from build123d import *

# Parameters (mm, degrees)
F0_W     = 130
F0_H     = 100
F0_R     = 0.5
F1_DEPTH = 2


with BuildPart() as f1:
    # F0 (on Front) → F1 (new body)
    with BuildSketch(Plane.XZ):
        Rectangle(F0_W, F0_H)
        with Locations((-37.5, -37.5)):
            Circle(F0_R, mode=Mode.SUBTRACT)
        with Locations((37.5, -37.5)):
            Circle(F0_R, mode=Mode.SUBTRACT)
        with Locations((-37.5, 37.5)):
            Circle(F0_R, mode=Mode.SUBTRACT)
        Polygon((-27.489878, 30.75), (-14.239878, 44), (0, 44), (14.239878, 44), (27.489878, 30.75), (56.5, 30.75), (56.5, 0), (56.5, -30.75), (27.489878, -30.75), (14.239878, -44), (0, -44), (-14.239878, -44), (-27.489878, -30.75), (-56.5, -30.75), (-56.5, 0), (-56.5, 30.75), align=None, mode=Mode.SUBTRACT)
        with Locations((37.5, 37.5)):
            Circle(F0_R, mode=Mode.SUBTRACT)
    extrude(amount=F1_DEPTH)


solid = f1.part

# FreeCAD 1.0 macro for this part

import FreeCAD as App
import Part
import Sketcher

V = App.Vector
Q = App.Units.Quantity


def add_polygon(sketch, points):
    """Adds a closed chain of lines whose ends are joined by coincident constraints."""
    first, n = sketch.GeometryCount, len(points)
    for a, b in zip(points, points[1:] + points[:1]):
        sketch.addGeometry(Part.LineSegment(App.Vector(*a, 0), App.Vector(*b, 0)), False)
    for i in range(n):
        sketch.addConstraint(Sketcher.Constraint("Coincident", first + i, 2, first + (i + 1) % n, 1))

doc = App.newDocument("Part")
body = doc.addObject("PartDesign::Body", "Body")

sketch1 = doc.addObject("Sketcher::SketchObject", "Sketch")
body.addObject(sketch1)
sketch1.AttachmentSupport = (doc.XZ_Plane, [""])
sketch1.MapMode = "FlatFace"
add_polygon(sketch1, [(-65, 50), (-65, -50), (65, -50), (65, 50)])
sketch1.addGeometry(Part.Circle(V(-37.5, -37.5, 0), V(0, 0, 1), 0.5), False)
sketch1.addGeometry(Part.Circle(V(37.5, -37.5, 0), V(0, 0, 1), 0.5), False)
sketch1.addGeometry(Part.Circle(V(-37.5, 37.5, 0), V(0, 0, 1), 0.5), False)
add_polygon(sketch1, [(-56.5, 30.8), (-27.5, 30.8), (-14.2, 44), (14.2, 44), (27.5, 30.8), (56.5, 30.8), (56.5, -30.8), (27.5, -30.8), (14.2, -44), (-14.2, -44), (-27.5, -30.8), (-56.5, -30.8)])
sketch1.addGeometry(Part.Circle(V(37.5, 37.5, 0), V(0, 0, 1), 0.5), False)
sketch1.addConstraint(Sketcher.Constraint("Vertical", 0))
sketch1.addConstraint(Sketcher.Constraint("Horizontal", 1))
sketch1.addConstraint(Sketcher.Constraint("Vertical", 2))
sketch1.addConstraint(Sketcher.Constraint("Horizontal", 3))
sketch1.addConstraint(Sketcher.Constraint("Horizontal", 7))
sketch1.addConstraint(Sketcher.Constraint("Horizontal", 9))
sketch1.addConstraint(Sketcher.Constraint("Horizontal", 11))
sketch1.addConstraint(Sketcher.Constraint("Vertical", 12))
sketch1.addConstraint(Sketcher.Constraint("Horizontal", 13))
sketch1.addConstraint(Sketcher.Constraint("Horizontal", 15))
sketch1.addConstraint(Sketcher.Constraint("Horizontal", 17))
sketch1.addConstraint(Sketcher.Constraint("Vertical", 18))
sketch1.addConstraint(Sketcher.Constraint("Equal", 4, 5))
sketch1.addConstraint(Sketcher.Constraint("Equal", 5, 6))
sketch1.addConstraint(Sketcher.Constraint("Equal", 6, 19))
sketch1.addConstraint(Sketcher.Constraint("Symmetric", 5, 3, 6, 3, -1, 1))
sketch1.addConstraint(Sketcher.Constraint("Symmetric", 4, 3, 19, 3, -1, 1))
sketch1.addConstraint(Sketcher.Constraint("Symmetric", 0, 2, 2, 2, -1, 1))
sketch1.addConstraint(Sketcher.Constraint("Symmetric", 7, 2, 13, 2, -1, 1))
sketch1.addConstraint(Sketcher.Constraint("Symmetric", 8, 2, 14, 2, -1, 1))
sketch1.addConstraint(Sketcher.Constraint("Symmetric", 10, 2, 16, 2, -1, 1))
sketch1.addConstraint(Sketcher.Constraint("Symmetric", 4, 3, 5, 3, -2))
sketch1.addConstraint(Sketcher.Constraint("Symmetric", 7, 2, 10, 2, -2))
sketch1.addConstraint(Sketcher.Constraint("Perpendicular", 8, 10))
sketch1.addConstraint(Sketcher.Constraint("Perpendicular", 14, 16))
sketch1.addConstraint(Sketcher.Constraint("Vertical", 9, 2, 14, 2))
sketch1.addConstraint(Sketcher.Constraint("Equal", 7, 11))
sketch1.addConstraint(Sketcher.Constraint("Diameter", 4, Q("1 mm")))
sketch1.addConstraint(Sketcher.Constraint("DistanceX", 1, 1, 1, 2, Q("130 mm")))
sketch1.addConstraint(Sketcher.Constraint("DistanceY", 0, 2, 0, 1, Q("100 mm")))
sketch1.addConstraint(Sketcher.Constraint("DistanceY", 12, 2, 12, 1, Q("61.5 mm")))
sketch1.addConstraint(Sketcher.Constraint("DistanceY", -1, 1, 8, 2, Q("44 mm")))
sketch1.addConstraint(Sketcher.Constraint("DistanceX", 4, 3, 5, 3, Q("75 mm")))
sketch1.addConstraint(Sketcher.Constraint("DistanceY", 4, 3, 6, 3, Q("75 mm")))
sketch1.addConstraint(Sketcher.Constraint("DistanceX", 19, 3, 11, 2, Q("19 mm")))
sketch1.addConstraint(Sketcher.Constraint("DistanceX", 7, 1, 7, 2, Q("29.010122 mm")))
pad1 = doc.addObject("PartDesign::Pad", "Pad")
body.addObject(pad1)
pad1.Profile = sketch1
pad1.Length = 2

doc.recompute()
